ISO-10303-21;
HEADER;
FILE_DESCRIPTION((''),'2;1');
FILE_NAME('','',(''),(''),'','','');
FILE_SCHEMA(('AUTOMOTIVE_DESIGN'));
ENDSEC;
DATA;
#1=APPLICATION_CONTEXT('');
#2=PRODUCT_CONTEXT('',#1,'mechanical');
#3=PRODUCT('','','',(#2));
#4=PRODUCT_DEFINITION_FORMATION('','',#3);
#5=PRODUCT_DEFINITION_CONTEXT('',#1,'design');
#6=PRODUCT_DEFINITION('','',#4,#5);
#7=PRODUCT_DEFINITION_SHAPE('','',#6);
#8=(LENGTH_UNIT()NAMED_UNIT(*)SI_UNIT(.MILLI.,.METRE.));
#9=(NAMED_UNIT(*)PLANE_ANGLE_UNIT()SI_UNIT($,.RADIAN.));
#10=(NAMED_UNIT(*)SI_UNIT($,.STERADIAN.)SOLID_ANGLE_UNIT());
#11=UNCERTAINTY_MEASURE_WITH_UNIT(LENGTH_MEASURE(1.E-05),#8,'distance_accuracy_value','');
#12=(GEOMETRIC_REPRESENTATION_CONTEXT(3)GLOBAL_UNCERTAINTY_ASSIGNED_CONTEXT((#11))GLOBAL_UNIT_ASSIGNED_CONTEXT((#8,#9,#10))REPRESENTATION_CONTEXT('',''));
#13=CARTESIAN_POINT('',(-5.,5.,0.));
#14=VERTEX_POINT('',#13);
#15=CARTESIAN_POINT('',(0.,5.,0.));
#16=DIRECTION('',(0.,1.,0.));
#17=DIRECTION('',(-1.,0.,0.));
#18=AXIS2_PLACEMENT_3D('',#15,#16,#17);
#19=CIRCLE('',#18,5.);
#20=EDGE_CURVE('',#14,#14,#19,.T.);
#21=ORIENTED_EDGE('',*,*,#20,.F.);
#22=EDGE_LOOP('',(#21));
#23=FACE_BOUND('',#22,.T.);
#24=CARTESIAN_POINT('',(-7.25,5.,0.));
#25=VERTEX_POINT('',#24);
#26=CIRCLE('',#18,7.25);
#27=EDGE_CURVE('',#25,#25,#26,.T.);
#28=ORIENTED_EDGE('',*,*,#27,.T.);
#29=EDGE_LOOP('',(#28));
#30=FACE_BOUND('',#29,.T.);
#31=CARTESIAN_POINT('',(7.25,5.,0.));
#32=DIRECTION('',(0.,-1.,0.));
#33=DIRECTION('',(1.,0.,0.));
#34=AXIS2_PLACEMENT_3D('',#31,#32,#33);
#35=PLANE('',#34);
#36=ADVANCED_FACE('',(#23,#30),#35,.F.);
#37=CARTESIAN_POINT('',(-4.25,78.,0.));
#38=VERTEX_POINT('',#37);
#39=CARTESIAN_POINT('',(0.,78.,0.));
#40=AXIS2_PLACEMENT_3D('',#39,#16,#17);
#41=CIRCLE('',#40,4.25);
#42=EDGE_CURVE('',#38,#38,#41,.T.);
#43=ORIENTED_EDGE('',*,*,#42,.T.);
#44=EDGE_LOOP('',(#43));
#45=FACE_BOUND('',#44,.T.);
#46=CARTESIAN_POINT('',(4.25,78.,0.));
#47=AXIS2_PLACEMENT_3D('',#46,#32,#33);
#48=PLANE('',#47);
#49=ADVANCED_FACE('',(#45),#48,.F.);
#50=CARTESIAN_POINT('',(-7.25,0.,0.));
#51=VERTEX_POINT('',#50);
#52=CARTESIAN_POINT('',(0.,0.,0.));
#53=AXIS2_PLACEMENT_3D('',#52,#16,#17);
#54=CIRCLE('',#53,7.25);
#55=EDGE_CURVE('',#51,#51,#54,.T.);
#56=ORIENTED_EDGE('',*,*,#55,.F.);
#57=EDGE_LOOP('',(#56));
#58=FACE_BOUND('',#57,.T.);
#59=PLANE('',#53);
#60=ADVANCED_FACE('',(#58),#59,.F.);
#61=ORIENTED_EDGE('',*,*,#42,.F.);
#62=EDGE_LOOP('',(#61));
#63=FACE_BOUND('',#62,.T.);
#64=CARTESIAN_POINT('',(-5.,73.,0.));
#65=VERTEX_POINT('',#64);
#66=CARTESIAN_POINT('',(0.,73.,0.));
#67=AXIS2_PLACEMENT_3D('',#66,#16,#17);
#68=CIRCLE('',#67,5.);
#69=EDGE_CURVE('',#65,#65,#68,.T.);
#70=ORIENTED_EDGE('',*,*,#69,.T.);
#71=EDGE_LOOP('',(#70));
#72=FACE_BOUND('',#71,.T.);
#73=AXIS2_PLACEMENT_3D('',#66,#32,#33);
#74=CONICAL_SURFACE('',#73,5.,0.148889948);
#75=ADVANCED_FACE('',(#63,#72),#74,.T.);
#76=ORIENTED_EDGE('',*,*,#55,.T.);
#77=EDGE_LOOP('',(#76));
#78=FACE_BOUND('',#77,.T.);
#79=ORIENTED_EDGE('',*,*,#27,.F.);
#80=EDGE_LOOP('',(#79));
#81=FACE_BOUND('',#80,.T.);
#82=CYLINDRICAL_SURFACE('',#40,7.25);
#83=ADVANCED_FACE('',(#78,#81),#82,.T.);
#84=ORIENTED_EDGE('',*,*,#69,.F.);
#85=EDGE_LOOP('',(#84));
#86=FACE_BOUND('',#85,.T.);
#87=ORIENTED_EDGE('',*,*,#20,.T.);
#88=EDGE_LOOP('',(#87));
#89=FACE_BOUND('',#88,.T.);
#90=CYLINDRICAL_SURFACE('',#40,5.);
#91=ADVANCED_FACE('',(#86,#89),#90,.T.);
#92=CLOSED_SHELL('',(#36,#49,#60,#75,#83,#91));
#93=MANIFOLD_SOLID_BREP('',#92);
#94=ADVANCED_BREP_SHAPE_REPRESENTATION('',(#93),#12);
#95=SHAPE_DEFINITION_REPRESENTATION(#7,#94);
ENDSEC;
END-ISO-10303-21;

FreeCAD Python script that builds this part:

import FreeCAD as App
import Part
import Sketcher

V = App.Vector

doc = App.newDocument("Part")
body = doc.addObject("PartDesign::Body", "Body")

sketch1 = body.newObject("Sketcher::SketchObject", "Sketch")
sketch1.AttachmentSupport = (doc.getObject("XY_Plane"), [""])
sketch1.MapMode = "FlatFace"
sketch1.addGeometry(Part.LineSegment(V(0, 0, 0), V(7.2, 0, 0)), False)
sketch1.addGeometry(Part.LineSegment(V(7.2, 0, 0), V(7.2, 5, 0)), False)
sketch1.addGeometry(Part.LineSegment(V(7.2, 5, 0), V(5, 5, 0)), False)
sketch1.addGeometry(Part.LineSegment(V(5, 5, 0), V(5, 73, 0)), False)
sketch1.addGeometry(Part.LineSegment(V(5, 73, 0), V(4.2, 78, 0)), False)
sketch1.addGeometry(Part.LineSegment(V(4.2, 78, 0), V(0, 78, 0)), False)
sketch1.addGeometry(Part.LineSegment(V(0, 78, 0), V(0, 0, 0)), False)
sketch1.addConstraint(Sketcher.Constraint("Coincident", 0, 2, 1, 1))
sketch1.addConstraint(Sketcher.Constraint("Coincident", 1, 2, 2, 1))
sketch1.addConstraint(Sketcher.Constraint("Coincident", 2, 2, 3, 1))
sketch1.addConstraint(Sketcher.Constraint("Coincident", 3, 2, 4, 1))
sketch1.addConstraint(Sketcher.Constraint("Coincident", 4, 2, 5, 1))
sketch1.addConstraint(Sketcher.Constraint("Coincident", 5, 2, 6, 1))
sketch1.addConstraint(Sketcher.Constraint("Coincident", 6, 2, 0, 1))
sketch1.addConstraint(Sketcher.Constraint("Horizontal", 0))
sketch1.addConstraint(Sketcher.Constraint("Vertical", 1))
sketch1.addConstraint(Sketcher.Constraint("Horizontal", 2))
sketch1.addConstraint(Sketcher.Constraint("Vertical", 3))
sketch1.addConstraint(Sketcher.Constraint("Horizontal", 5))
sketch1.addConstraint(Sketcher.Constraint("Vertical", 6))
sketch1.addConstraint(Sketcher.Constraint("Coincident", 6, 2, -1, 1))
sketch1.addConstraint(Sketcher.Constraint("DistanceY", 1, 1, 1, 2, 5.0))
sketch1.addConstraint(Sketcher.Constraint("DistanceY", 3, 1, 3, 2, 68.0))
sketch1.addConstraint(Sketcher.Constraint("DistanceY", 6, 2, 6, 1, 78.0))
sketch1.addConstraint(Sketcher.Constraint("DistanceX", -1, 1, 2, 2, 5.0))
sketch1.addConstraint(Sketcher.Constraint("DistanceX", 4, 2, 1, 2, 3.0))
sketch1.addConstraint(Sketcher.Constraint("DistanceX", 0, 1, 0, 2, 7.25))
revolution = body.newObject("PartDesign::Revolution", "Revolution")
revolution.Profile = sketch1
revolution.ReferenceAxis = (sketch1, ["V_Axis"])
revolution.Angle = 360

doc.recompute()
